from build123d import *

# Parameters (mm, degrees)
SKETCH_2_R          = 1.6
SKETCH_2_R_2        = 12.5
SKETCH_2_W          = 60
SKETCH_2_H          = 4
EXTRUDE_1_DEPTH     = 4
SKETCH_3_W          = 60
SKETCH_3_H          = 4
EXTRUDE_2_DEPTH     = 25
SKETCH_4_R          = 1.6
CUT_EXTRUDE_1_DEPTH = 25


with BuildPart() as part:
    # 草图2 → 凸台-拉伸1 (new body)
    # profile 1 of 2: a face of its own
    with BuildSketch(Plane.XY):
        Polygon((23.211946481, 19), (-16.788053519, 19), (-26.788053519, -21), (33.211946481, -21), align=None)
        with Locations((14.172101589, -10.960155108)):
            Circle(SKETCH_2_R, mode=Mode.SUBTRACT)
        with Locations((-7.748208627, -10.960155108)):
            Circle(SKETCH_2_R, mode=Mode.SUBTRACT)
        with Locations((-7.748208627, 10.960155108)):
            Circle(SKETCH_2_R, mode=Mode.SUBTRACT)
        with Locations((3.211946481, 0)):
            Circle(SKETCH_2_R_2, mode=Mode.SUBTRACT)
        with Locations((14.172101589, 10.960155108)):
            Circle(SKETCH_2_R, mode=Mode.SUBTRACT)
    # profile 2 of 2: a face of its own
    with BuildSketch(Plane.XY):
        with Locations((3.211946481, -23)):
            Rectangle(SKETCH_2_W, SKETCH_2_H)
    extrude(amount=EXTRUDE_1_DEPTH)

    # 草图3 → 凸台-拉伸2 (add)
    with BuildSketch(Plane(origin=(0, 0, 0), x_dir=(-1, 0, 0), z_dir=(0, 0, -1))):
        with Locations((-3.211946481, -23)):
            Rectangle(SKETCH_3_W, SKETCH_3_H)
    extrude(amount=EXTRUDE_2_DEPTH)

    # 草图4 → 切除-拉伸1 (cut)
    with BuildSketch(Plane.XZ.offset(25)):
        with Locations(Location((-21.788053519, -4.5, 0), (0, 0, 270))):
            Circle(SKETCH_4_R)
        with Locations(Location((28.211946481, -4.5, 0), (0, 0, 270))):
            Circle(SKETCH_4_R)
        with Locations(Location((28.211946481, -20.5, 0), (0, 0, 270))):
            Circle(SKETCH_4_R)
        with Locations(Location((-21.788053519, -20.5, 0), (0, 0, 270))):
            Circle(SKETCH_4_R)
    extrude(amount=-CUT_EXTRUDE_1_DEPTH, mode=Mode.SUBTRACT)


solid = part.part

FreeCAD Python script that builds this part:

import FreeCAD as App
import Part
import Sketcher

V = App.Vector

doc = App.newDocument("Part")
body = doc.addObject("PartDesign::Body", "Body")

sketch1 = body.newObject("Sketcher::SketchObject", "Sketch")
sketch1.AttachmentSupport = (doc.getObject("XY_Plane"), [""])
sketch1.MapMode = "FlatFace"
sketch1.addGeometry([
    Part.LineSegment(V(23.2, 19, 0), V(-16.8, 19, 0)),
    Part.LineSegment(V(-16.8, 19, 0), V(-26.8, -21, 0)),
    Part.LineSegment(V(-26.8, -21, 0), V(-26.8, -25, 0)),
    Part.LineSegment(V(-26.8, -25, 0), V(33.2, -25, 0)),
    Part.LineSegment(V(33.2, -25, 0), V(33.2, -21, 0)),
    Part.LineSegment(V(33.2, -21, 0), V(23.2, 19, 0)),
    Part.Circle(V(-7.7, -11, 0), V(0, 0, 1), 1.6),
    Part.Circle(V(14.2, -11, 0), V(0, 0, 1), 1.6),
    Part.Circle(V(-7.7, 11, 0), V(0, 0, 1), 1.6),
    Part.Circle(V(3.2, 0, 0), V(0, 0, 1), 12.5),
    Part.Circle(V(14.2, 11, 0), V(0, 0, 1), 1.6),
], False)
sketch1.addConstraint([
    Sketcher.Constraint("Coincident", 0, 2, 1, 1),
    Sketcher.Constraint("Coincident", 1, 2, 2, 1),
    Sketcher.Constraint("Coincident", 2, 2, 3, 1),
    Sketcher.Constraint("Coincident", 3, 2, 4, 1),
    Sketcher.Constraint("Coincident", 4, 2, 5, 1),
    Sketcher.Constraint("Coincident", 5, 2, 0, 1),
    Sketcher.Constraint("Horizontal", 0),
    Sketcher.Constraint("Vertical", 2),
    Sketcher.Constraint("Horizontal", 3),
    Sketcher.Constraint("Vertical", 4),
    Sketcher.Constraint("Equal", 6, 7),
    Sketcher.Constraint("Equal", 7, 8),
    Sketcher.Constraint("Equal", 8, 10),
    Sketcher.Constraint("Symmetric", 6, 3, 8, 3, -1),
    Sketcher.Constraint("Symmetric", 7, 3, 10, 3, -1),
    Sketcher.Constraint("PointOnObject", 9, 3, -1),
    Sketcher.Constraint("Horizontal", 6, 3, 7, 3),
    Sketcher.Constraint("Horizontal", 1, 2, 4, 2),
    Sketcher.Constraint("Equal", 1, 5),
    Sketcher.Constraint("Diameter", 9, 25.0),
    Sketcher.Constraint("Diameter", 6, 3.2),
    Sketcher.Constraint("DistanceX", 0, 2, 0, 1, 40.0),
    Sketcher.Constraint("DistanceX", 3, 1, 3, 2, 60.0),
    Sketcher.Constraint("DistanceY", 2, 2, 2, 1, 4.0),
    Sketcher.Constraint("DistanceY", -1, 1, 0, 2, 19.0),
    Sketcher.Constraint("DistanceY", 1, 2, -1, 1, 21.0),
    Sketcher.Constraint("DistanceX", 0, 2, 9, 3, 20.0),
    Sketcher.Constraint("DistanceX", -1, 1, 7, 3, 14.172102),
    Sketcher.Constraint("DistanceX", 6, 3, -1, 1, 7.748209),
    Sketcher.Constraint("DistanceY", 6, 3, 8, 3, 21.92031),
    Sketcher.Constraint("DistanceX", -1, 1, 9, 3, 3.211946),
])
pad1 = body.newObject("PartDesign::Pad", "Pad")
pad1.Profile = sketch1
pad1.Length = 4

sketch2 = body.newObject("Sketcher::SketchObject", "Sketch001")
sketch2.AttachmentSupport = (doc.getObject("XY_Plane"), [""])
sketch2.MapMode = "FlatFace"
sketch2.addGeometry([
    Part.LineSegment(V(33.2, -21, 0), V(33.2, -25, 0)),
    Part.LineSegment(V(33.2, -25, 0), V(-26.8, -25, 0)),
    Part.LineSegment(V(-26.8, -25, 0), V(-26.8, -21, 0)),
    Part.LineSegment(V(-26.8, -21, 0), V(33.2, -21, 0)),
], False)
sketch2.addConstraint([
    Sketcher.Constraint("Coincident", 0, 2, 1, 1),
    Sketcher.Constraint("Coincident", 1, 2, 2, 1),
    Sketcher.Constraint("Coincident", 2, 2, 3, 1),
    Sketcher.Constraint("Coincident", 3, 2, 0, 1),
    Sketcher.Constraint("Vertical", 0),
    Sketcher.Constraint("Horizontal", 1),
    Sketcher.Constraint("Vertical", 2),
    Sketcher.Constraint("Horizontal", 3),
    Sketcher.Constraint("DistanceX", 1, 2, 1, 1, 60.0),
    Sketcher.Constraint("DistanceY", 0, 2, 0, 1, 4.0),
    Sketcher.Constraint("DistanceY", 0, 2, -1, 1, 25.0),
    Sketcher.Constraint("DistanceX", -1, 1, 0, 2, 33.211946),
])
pad2 = body.newObject("PartDesign::Pad", "Pad001")
pad2.Profile = sketch2
pad2.Length = 25
pad2.Reversed = True

sketch3 = body.newObject("Sketcher::SketchObject", "Sketch002")
sketch3.AttachmentSupport = (doc.getObject("XZ_Plane"), [""])
sketch3.MapMode = "FlatFace"
sketch3.AttachmentOffset = App.Placement(V(0, 0, 25), App.Rotation())
sketch3.addGeometry([
    Part.Circle(V(-21.8, -4.5, 0), V(0, 0, 1), 1.6),
    Part.Circle(V(28.2, -4.5, 0), V(0, 0, 1), 1.6),
    Part.Circle(V(28.2, -20.5, 0), V(0, 0, 1), 1.6),
    Part.Circle(V(-21.8, -20.5, 0), V(0, 0, 1), 1.6),
], False)
sketch3.addConstraint([
    Sketcher.Constraint("Equal", 0, 1),
    Sketcher.Constraint("Equal", 1, 2),
    Sketcher.Constraint("Equal", 2, 3),
    Sketcher.Constraint("Horizontal", 0, 3, 1, 3),
    Sketcher.Constraint("Horizontal", 2, 3, 3, 3),
    Sketcher.Constraint("Vertical", 1, 3, 2, 3),
    Sketcher.Constraint("Vertical", 0, 3, 3, 3),
    Sketcher.Constraint("Diameter", 0, 3.2),
    Sketcher.Constraint("DistanceX", 0, 3, 1, 3, 50.0),
    Sketcher.Constraint("DistanceY", 2, 3, 1, 3, 16.0),
    Sketcher.Constraint("DistanceY", 0, 3, -1, 1, 4.5),
    Sketcher.Constraint("DistanceX", 0, 3, -1, 1, 21.788054),
])
pocket1 = body.newObject("PartDesign::Pocket", "Pocket")
pocket1.Profile = sketch3
pocket1.Length = 25

doc.recompute()
